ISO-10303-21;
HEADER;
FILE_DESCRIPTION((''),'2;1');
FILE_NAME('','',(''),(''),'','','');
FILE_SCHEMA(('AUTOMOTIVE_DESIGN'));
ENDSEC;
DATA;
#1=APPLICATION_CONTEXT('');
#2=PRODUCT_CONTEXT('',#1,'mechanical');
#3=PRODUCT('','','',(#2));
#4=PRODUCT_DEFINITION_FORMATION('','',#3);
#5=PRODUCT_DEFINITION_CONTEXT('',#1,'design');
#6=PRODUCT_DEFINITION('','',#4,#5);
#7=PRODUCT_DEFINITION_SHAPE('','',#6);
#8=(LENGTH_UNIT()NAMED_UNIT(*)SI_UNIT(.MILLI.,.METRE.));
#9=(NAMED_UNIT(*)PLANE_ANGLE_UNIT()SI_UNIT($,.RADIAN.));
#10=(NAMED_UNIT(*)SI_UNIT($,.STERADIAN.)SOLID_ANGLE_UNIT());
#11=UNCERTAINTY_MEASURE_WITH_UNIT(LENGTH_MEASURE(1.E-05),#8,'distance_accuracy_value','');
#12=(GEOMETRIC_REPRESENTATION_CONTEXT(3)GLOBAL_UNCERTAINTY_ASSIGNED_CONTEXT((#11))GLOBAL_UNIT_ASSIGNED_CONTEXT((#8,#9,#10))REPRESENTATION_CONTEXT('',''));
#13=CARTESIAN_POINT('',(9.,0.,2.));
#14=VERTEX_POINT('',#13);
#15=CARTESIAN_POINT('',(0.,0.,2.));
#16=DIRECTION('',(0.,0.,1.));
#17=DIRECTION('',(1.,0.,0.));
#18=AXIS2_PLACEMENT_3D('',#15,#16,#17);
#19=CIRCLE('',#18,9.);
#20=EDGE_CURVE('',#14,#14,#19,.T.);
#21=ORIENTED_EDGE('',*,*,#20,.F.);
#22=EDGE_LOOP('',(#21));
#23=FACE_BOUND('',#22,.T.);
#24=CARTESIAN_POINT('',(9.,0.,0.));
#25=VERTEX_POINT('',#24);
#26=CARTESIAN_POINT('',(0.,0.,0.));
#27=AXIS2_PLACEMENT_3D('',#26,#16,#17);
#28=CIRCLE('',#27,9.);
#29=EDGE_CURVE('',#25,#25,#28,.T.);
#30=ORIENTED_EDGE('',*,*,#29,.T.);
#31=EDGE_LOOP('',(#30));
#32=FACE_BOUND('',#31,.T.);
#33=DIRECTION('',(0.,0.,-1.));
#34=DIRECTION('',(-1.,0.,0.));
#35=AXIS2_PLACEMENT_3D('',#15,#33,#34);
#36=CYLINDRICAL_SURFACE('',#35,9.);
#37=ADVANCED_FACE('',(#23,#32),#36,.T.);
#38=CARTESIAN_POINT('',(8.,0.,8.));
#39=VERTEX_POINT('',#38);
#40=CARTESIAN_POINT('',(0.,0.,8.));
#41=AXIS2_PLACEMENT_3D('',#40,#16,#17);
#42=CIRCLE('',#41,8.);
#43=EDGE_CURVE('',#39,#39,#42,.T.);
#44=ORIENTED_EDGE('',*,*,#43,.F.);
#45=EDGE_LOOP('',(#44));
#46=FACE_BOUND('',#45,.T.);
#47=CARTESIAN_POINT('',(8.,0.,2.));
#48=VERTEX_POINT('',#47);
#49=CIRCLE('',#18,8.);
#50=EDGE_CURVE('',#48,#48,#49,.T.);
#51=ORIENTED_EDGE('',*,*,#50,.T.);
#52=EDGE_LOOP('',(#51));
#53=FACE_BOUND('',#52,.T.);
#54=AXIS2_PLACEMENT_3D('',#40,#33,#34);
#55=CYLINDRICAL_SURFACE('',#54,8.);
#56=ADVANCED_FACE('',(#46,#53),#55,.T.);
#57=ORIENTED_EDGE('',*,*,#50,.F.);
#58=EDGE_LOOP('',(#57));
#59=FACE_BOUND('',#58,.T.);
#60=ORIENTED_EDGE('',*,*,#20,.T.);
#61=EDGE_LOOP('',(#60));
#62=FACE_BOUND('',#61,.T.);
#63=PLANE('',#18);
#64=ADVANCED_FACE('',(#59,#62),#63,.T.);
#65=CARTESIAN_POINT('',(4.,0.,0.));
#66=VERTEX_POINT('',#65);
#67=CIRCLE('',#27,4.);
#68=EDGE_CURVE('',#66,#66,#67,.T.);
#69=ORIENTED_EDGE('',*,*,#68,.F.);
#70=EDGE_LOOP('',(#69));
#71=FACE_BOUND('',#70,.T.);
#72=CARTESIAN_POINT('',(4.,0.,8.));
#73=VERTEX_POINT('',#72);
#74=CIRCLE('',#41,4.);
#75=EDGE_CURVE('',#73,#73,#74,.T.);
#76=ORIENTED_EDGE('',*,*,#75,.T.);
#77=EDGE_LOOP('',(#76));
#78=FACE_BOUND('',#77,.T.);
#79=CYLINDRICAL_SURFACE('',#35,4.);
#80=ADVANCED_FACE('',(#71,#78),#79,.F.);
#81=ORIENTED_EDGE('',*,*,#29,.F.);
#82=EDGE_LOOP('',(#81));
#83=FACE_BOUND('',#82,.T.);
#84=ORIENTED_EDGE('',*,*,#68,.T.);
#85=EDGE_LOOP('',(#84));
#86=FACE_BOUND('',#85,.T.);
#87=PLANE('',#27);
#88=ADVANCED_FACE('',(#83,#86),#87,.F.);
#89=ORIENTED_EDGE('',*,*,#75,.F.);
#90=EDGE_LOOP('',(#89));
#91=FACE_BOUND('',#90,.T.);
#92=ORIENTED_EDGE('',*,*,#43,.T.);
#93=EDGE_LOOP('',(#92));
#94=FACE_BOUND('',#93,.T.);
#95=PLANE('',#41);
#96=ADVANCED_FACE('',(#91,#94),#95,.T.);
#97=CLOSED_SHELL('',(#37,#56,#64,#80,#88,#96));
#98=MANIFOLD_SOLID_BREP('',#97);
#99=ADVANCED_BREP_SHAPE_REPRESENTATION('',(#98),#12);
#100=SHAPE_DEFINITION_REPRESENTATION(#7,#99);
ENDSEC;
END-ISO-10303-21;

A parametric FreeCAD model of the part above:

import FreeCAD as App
import Part
import Sketcher
Q = App.Units.Quantity

doc = App.newDocument("Part")
body = doc.addObject("PartDesign::Body", "Body")

# Sketch on XY plane
sketch1 = body.newObject("Sketcher::SketchObject", "Sketch")
sketch1.AttachmentSupport = (doc.getObject("XY_Plane"), [""])
sketch1.MapMode = "FlatFace"
sketch1.addGeometry(Part.Circle(App.Vector(0, 0, 0), App.Vector(0, 0, 1), 9), False)
sketch1.addGeometry(Part.Circle(App.Vector(0, 0, 0), App.Vector(0, 0, 1), 4), False)
sketch1.addConstraint(Sketcher.Constraint("Coincident", 0, 3, -1, 1))
sketch1.addConstraint(Sketcher.Constraint("Coincident", 1, 3, -1, 1))
sketch1.addConstraint(Sketcher.Constraint("Diameter", 0, Q("18 mm")))
sketch1.addConstraint(Sketcher.Constraint("Diameter", 1, Q("8 mm")))
pad1 = body.newObject("PartDesign::Pad", "Pad")
pad1.Profile = sketch1
pad1.Length = 2

# Sketch on XY plane
sketch2 = body.newObject("Sketcher::SketchObject", "Sketch001")
sketch2.AttachmentSupport = (doc.getObject("XY_Plane"), [""])
sketch2.MapMode = "FlatFace"
sketch2.AttachmentOffset = App.Placement(App.Vector(0, 0, 2), App.Rotation())
sketch2.addGeometry(Part.Circle(App.Vector(0, 0, 0), App.Vector(0, 0, 1), 8), False)
sketch2.addGeometry(Part.Circle(App.Vector(0, 0, 0), App.Vector(0, 0, 1), 4), False)
sketch2.addConstraint(Sketcher.Constraint("Coincident", 0, 3, -1, 1))
sketch2.addConstraint(Sketcher.Constraint("Coincident", 1, 3, -1, 1))
sketch2.addConstraint(Sketcher.Constraint("Diameter", 0, Q("16 mm")))
sketch2.addConstraint(Sketcher.Constraint("Diameter", 1, Q("8 mm")))
pad2 = body.newObject("PartDesign::Pad", "Pad001")
pad2.Profile = sketch2
pad2.Length = 6

doc.recompute()
